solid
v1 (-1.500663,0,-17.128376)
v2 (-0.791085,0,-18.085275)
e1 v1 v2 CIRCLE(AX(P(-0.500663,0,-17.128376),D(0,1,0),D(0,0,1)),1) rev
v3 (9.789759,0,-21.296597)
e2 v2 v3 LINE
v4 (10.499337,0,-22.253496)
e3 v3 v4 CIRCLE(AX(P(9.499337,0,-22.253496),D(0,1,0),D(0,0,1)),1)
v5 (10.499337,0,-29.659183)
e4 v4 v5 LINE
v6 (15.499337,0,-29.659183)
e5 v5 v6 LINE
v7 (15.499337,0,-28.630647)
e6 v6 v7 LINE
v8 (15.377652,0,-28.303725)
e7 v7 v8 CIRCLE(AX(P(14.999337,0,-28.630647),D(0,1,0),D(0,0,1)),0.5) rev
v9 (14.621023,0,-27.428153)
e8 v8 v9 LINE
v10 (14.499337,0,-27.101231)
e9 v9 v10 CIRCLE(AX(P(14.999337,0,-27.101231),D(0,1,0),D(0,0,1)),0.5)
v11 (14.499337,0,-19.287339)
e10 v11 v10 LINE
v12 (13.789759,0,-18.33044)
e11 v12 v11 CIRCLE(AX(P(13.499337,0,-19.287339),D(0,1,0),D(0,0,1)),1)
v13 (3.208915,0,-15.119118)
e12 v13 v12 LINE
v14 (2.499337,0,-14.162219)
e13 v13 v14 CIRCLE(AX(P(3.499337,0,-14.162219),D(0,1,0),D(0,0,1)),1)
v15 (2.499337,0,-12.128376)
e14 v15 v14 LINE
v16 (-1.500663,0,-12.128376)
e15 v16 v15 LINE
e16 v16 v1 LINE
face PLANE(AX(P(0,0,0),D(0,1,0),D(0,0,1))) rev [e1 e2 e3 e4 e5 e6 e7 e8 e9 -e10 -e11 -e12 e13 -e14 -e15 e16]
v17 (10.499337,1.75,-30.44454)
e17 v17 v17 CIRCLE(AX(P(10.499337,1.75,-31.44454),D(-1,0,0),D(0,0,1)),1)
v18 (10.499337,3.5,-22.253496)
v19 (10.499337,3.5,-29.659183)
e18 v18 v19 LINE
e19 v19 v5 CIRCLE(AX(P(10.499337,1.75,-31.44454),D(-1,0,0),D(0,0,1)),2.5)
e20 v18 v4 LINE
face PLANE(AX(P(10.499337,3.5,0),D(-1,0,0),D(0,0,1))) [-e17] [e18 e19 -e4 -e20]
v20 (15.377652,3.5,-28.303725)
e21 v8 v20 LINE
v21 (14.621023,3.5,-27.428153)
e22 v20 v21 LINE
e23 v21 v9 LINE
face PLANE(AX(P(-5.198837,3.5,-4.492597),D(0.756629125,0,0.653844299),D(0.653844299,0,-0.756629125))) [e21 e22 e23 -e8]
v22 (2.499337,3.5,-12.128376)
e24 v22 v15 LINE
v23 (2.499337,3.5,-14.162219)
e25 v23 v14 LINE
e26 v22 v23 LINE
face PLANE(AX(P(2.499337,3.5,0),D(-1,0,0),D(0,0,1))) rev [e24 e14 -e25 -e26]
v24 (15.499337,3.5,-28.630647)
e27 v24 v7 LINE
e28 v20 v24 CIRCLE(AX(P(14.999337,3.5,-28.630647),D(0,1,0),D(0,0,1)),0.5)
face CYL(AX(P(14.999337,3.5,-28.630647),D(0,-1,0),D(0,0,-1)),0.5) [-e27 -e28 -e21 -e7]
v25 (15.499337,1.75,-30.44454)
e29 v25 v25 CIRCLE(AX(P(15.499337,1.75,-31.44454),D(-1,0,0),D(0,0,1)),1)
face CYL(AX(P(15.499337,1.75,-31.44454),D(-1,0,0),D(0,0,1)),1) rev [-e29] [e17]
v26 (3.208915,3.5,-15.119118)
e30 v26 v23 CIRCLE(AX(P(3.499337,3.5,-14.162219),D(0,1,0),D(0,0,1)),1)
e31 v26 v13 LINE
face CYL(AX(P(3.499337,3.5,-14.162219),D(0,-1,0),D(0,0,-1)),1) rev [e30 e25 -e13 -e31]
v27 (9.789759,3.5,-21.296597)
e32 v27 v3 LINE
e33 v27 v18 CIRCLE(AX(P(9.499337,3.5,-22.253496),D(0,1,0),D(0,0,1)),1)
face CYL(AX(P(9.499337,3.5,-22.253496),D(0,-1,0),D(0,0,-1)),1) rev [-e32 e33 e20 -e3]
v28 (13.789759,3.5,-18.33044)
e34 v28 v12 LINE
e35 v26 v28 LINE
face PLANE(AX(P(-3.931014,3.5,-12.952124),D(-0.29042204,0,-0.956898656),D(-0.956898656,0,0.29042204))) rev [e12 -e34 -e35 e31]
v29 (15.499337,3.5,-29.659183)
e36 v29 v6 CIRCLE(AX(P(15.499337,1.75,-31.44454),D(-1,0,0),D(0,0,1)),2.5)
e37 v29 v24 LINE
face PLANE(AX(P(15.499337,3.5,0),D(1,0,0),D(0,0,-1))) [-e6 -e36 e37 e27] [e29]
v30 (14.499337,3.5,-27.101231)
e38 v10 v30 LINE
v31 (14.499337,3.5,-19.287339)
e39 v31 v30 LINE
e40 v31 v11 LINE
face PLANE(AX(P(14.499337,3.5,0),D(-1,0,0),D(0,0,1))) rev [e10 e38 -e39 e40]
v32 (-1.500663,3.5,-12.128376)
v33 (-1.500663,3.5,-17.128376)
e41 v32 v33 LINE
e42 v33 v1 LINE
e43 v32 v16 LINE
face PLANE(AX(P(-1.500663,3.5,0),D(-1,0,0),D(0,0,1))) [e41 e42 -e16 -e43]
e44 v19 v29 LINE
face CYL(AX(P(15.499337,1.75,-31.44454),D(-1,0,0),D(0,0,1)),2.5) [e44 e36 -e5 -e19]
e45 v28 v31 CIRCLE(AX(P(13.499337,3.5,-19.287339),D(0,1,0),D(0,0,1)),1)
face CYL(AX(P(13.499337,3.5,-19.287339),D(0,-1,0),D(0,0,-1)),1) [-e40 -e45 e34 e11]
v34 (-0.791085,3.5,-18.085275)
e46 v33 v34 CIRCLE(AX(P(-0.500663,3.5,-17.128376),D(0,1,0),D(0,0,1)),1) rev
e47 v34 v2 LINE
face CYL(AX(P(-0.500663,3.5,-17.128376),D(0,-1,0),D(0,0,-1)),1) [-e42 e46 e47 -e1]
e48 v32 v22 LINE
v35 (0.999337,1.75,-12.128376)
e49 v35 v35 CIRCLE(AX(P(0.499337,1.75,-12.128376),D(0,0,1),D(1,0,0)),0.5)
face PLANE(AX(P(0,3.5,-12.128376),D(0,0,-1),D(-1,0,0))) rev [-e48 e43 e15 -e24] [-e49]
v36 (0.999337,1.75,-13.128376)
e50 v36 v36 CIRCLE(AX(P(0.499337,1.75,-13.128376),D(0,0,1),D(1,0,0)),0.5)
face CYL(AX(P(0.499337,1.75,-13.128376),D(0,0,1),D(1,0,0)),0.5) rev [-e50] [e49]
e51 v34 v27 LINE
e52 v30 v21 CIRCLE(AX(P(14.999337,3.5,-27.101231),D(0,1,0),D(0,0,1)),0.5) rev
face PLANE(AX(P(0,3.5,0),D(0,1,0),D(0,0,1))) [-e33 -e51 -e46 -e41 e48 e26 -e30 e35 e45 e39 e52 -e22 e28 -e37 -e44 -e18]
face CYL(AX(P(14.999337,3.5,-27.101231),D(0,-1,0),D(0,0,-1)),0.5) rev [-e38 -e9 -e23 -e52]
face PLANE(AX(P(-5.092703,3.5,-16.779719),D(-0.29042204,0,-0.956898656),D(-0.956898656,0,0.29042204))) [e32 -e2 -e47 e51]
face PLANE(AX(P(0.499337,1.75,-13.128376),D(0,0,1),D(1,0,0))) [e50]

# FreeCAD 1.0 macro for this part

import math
import FreeCAD as App
import Part
import Sketcher
from FreeCAD import Vector


def edges_at(feature, points):
    """Names of the edges that pass closest to the given points."""
    edges = feature.Shape.Edges
    near = lambda p: min(range(len(edges)), key=lambda i: edges[i].distToShape(Part.Vertex(*p))[0])
    return sorted({f"Edge{near(p) + 1}" for p in points})

doc = App.newDocument("Part")
body = doc.addObject("PartDesign::Body", "Body")

# Sketch on XZ plane
sketch1 = body.newObject("Sketcher::SketchObject", "Sketch")
sketch1.AttachmentSupport = (doc.getObject("XZ_Plane"), [""])
sketch1.MapMode = "FlatFace"
sketch1.addGeometry(Part.LineSegment(Vector(-1.5, -17.1, 0), Vector(-1.5, -12.1, 0)), False)
sketch1.addGeometry(Part.LineSegment(Vector(-1.5, -12.1, 0), Vector(2.5, -12.1, 0)), False)
sketch1.addGeometry(Part.LineSegment(Vector(2.5, -12.1, 0), Vector(2.5, -14.2, 0)), False)
sketch1.addGeometry(Part.ArcOfCircle(Part.Circle(Vector(3.5, -14.2, 0), Vector(0, 0, 1), 1), math.radians(180), math.radians(253)), False)
sketch1.addGeometry(Part.LineSegment(Vector(3.2, -15.1, 0), Vector(13.8, -18.3, 0)), False)
sketch1.addGeometry(Part.ArcOfCircle(Part.Circle(Vector(13.5, -19.3, 0), Vector(0, 0, 1), 1), math.radians(0), math.radians(73)), False)
sketch1.addGeometry(Part.LineSegment(Vector(14.5, -19.3, 0), Vector(14.5, -27.3, 0)), False)
sketch1.addGeometry(Part.LineSegment(Vector(14.5, -27.3, 0), Vector(15.5, -28.4, 0)), False)
sketch1.addGeometry(Part.LineSegment(Vector(15.5, -28.4, 0), Vector(15.5, -31.4, 0)), False)
sketch1.addGeometry(Part.LineSegment(Vector(15.5, -31.4, 0), Vector(10.5, -31.4, 0)), False)
sketch1.addGeometry(Part.LineSegment(Vector(10.5, -31.4, 0), Vector(10.5, -22.3, 0)), False)
sketch1.addGeometry(Part.ArcOfCircle(Part.Circle(Vector(9.5, -22.3, 0), Vector(0, 0, 1), 1), math.radians(0), math.radians(73)), False)
sketch1.addGeometry(Part.LineSegment(Vector(9.8, -21.3, 0), Vector(-0.8, -18.1, 0)), False)
sketch1.addGeometry(Part.ArcOfCircle(Part.Circle(Vector(-0.5, -17.1, 0), Vector(0, 0, 1), 1), math.radians(-180), math.radians(-107)), False)
sketch1.addConstraint(Sketcher.Constraint("Coincident", 0, 2, 1, 1))
sketch1.addConstraint(Sketcher.Constraint("Coincident", 1, 2, 2, 1))
sketch1.addConstraint(Sketcher.Constraint("Tangent", 2, 2, 3, 1))
sketch1.addConstraint(Sketcher.Constraint("Tangent", 3, 2, 4, 1))
sketch1.addConstraint(Sketcher.Constraint("Tangent", 4, 2, 5, 2))
sketch1.addConstraint(Sketcher.Constraint("Tangent", 5, 1, 6, 1))
sketch1.addConstraint(Sketcher.Constraint("Coincident", 6, 2, 7, 1))
sketch1.addConstraint(Sketcher.Constraint("Coincident", 7, 2, 8, 1))
sketch1.addConstraint(Sketcher.Constraint("Coincident", 8, 2, 9, 1))
sketch1.addConstraint(Sketcher.Constraint("Coincident", 9, 2, 10, 1))
sketch1.addConstraint(Sketcher.Constraint("Tangent", 10, 2, 11, 1))
sketch1.addConstraint(Sketcher.Constraint("Tangent", 11, 2, 12, 1))
sketch1.addConstraint(Sketcher.Constraint("Tangent", 12, 2, 13, 2))
sketch1.addConstraint(Sketcher.Constraint("Tangent", 13, 1, 0, 1))
sketch1.addConstraint(Sketcher.Constraint("Vertical", 0))
sketch1.addConstraint(Sketcher.Constraint("Horizontal", 1))
sketch1.addConstraint(Sketcher.Constraint("Vertical", 2))
sketch1.addConstraint(Sketcher.Constraint("Vertical", 6))
sketch1.addConstraint(Sketcher.Constraint("Vertical", 8))
sketch1.addConstraint(Sketcher.Constraint("Horizontal", 9))
sketch1.addConstraint(Sketcher.Constraint("Vertical", 10))
sketch1.addConstraint(Sketcher.Constraint("Equal", 3, 5))
sketch1.addConstraint(Sketcher.Constraint("Equal", 5, 11))
sketch1.addConstraint(Sketcher.Constraint("Equal", 11, 13))
sketch1.addConstraint(Sketcher.Constraint("Parallel", 4, 12))
sketch1.addConstraint(Sketcher.Constraint("Equal", 9, 0))
sketch1.addConstraint(Sketcher.Constraint("Equal", 4, 12))
sketch1.addConstraint(Sketcher.Constraint("Radius", 3, 1.0))
sketch1.addConstraint(Sketcher.Constraint("DistanceX", 1, 1, 1, 2, 4.0))
sketch1.addConstraint(Sketcher.Constraint("DistanceX", 9, 2, 9, 1, 5.0))
sketch1.addConstraint(Sketcher.Constraint("DistanceY", 6, 2, 6, 1, 8.0))
sketch1.addConstraint(Sketcher.Constraint("DistanceY", 8, 2, 8, 1, 3.0))
sketch1.addConstraint(Sketcher.Constraint("DistanceX", 3, 3, 5, 3, 10.0))
sketch1.addConstraint(Sketcher.Constraint("DistanceY", 3, 2, 3, 3, 0.956899))
sketch1.addConstraint(Sketcher.Constraint("DistanceY", 7, 2, 6, 2, 1.157201))
sketch1.addConstraint(Sketcher.Constraint("DistanceY", 2, 2, 2, 1, 2.033843))
sketch1.addConstraint(Sketcher.Constraint("DistanceY", 3, 3, -1, 1, 14.162219))
sketch1.addConstraint(Sketcher.Constraint("DistanceX", -1, 1, 4, 2, 13.789759))
pad1 = body.newObject("PartDesign::Pad", "Pad")
pad1.Profile = sketch1
pad1.Length = 3.5
pad1.Reversed = True

# Sketch on YZ plane
sketch2 = body.newObject("Sketcher::SketchObject", "Sketch001")
sketch2.AttachmentSupport = (doc.getObject("YZ_Plane"), [""])
sketch2.MapMode = "FlatFace"
sketch2.AttachmentOffset = App.Placement(Vector(0, 0, 10.499337), App.Rotation())
sketch2.addGeometry(Part.Circle(Vector(1.8, -31.4, 0), Vector(0, 0, 1), 2.5), False)
sketch2.addConstraint(Sketcher.Constraint("Diameter", 0, 5.0))
sketch2.addConstraint(Sketcher.Constraint("DistanceX", -1, 1, 0, 3, 1.75))
sketch2.addConstraint(Sketcher.Constraint("DistanceY", 0, 3, -1, 1, 31.44454))
pad2 = body.newObject("PartDesign::Pad", "Pad001")
pad2.Profile = sketch2
pad2.Length = 5
doc.recompute()

fillet = body.newObject("PartDesign::Fillet", "Fillet")
fillet.Base = (pad2, edges_at(pad2, [(15.499, 1.75, -28.445), (14.499, 1.75, -27.287)]))
fillet.Radius = 0.5

# Sketch on XY plane
sketch3 = body.newObject("Sketcher::SketchObject", "Sketch002")
sketch3.AttachmentSupport = (doc.getObject("XY_Plane"), [""])
sketch3.MapMode = "FlatFace"
sketch3.AttachmentOffset = App.Placement(Vector(0, 0, -12.128376), App.Rotation())
sketch3.addGeometry(Part.Circle(Vector(0.5, 1.8, 0), Vector(0, 0, 1), 0.5), False)
sketch3.addConstraint(Sketcher.Constraint("Diameter", 0, 1.0))
sketch3.addConstraint(Sketcher.Constraint("DistanceY", -1, 1, 0, 3, 1.75))
sketch3.addConstraint(Sketcher.Constraint("DistanceX", -1, 1, 0, 3, 0.499337))
pocket1 = body.newObject("PartDesign::Pocket", "Pocket")
pocket1.Profile = sketch3
pocket1.Length = 1

# Sketch on YZ plane
sketch4 = body.newObject("Sketcher::SketchObject", "Sketch003")
sketch4.AttachmentSupport = (doc.getObject("YZ_Plane"), [""])
sketch4.MapMode = "FlatFace"
sketch4.AttachmentOffset = App.Placement(Vector(0, 0, 10.499337), App.Rotation())
sketch4.addGeometry(Part.Circle(Vector(1.8, -31.4, 0), Vector(0, 0, 1), 1), False)
sketch4.addConstraint(Sketcher.Constraint("Diameter", 0, 2.0))
sketch4.addConstraint(Sketcher.Constraint("DistanceX", -1, 1, 0, 3, 1.75))
sketch4.addConstraint(Sketcher.Constraint("DistanceY", 0, 3, -1, 1, 31.44454))
pocket2 = body.newObject("PartDesign::Pocket", "Pocket001")
pocket2.Profile = sketch4
pocket2.Type = "ThroughAll"
pocket2.Reversed = True

doc.recompute()
